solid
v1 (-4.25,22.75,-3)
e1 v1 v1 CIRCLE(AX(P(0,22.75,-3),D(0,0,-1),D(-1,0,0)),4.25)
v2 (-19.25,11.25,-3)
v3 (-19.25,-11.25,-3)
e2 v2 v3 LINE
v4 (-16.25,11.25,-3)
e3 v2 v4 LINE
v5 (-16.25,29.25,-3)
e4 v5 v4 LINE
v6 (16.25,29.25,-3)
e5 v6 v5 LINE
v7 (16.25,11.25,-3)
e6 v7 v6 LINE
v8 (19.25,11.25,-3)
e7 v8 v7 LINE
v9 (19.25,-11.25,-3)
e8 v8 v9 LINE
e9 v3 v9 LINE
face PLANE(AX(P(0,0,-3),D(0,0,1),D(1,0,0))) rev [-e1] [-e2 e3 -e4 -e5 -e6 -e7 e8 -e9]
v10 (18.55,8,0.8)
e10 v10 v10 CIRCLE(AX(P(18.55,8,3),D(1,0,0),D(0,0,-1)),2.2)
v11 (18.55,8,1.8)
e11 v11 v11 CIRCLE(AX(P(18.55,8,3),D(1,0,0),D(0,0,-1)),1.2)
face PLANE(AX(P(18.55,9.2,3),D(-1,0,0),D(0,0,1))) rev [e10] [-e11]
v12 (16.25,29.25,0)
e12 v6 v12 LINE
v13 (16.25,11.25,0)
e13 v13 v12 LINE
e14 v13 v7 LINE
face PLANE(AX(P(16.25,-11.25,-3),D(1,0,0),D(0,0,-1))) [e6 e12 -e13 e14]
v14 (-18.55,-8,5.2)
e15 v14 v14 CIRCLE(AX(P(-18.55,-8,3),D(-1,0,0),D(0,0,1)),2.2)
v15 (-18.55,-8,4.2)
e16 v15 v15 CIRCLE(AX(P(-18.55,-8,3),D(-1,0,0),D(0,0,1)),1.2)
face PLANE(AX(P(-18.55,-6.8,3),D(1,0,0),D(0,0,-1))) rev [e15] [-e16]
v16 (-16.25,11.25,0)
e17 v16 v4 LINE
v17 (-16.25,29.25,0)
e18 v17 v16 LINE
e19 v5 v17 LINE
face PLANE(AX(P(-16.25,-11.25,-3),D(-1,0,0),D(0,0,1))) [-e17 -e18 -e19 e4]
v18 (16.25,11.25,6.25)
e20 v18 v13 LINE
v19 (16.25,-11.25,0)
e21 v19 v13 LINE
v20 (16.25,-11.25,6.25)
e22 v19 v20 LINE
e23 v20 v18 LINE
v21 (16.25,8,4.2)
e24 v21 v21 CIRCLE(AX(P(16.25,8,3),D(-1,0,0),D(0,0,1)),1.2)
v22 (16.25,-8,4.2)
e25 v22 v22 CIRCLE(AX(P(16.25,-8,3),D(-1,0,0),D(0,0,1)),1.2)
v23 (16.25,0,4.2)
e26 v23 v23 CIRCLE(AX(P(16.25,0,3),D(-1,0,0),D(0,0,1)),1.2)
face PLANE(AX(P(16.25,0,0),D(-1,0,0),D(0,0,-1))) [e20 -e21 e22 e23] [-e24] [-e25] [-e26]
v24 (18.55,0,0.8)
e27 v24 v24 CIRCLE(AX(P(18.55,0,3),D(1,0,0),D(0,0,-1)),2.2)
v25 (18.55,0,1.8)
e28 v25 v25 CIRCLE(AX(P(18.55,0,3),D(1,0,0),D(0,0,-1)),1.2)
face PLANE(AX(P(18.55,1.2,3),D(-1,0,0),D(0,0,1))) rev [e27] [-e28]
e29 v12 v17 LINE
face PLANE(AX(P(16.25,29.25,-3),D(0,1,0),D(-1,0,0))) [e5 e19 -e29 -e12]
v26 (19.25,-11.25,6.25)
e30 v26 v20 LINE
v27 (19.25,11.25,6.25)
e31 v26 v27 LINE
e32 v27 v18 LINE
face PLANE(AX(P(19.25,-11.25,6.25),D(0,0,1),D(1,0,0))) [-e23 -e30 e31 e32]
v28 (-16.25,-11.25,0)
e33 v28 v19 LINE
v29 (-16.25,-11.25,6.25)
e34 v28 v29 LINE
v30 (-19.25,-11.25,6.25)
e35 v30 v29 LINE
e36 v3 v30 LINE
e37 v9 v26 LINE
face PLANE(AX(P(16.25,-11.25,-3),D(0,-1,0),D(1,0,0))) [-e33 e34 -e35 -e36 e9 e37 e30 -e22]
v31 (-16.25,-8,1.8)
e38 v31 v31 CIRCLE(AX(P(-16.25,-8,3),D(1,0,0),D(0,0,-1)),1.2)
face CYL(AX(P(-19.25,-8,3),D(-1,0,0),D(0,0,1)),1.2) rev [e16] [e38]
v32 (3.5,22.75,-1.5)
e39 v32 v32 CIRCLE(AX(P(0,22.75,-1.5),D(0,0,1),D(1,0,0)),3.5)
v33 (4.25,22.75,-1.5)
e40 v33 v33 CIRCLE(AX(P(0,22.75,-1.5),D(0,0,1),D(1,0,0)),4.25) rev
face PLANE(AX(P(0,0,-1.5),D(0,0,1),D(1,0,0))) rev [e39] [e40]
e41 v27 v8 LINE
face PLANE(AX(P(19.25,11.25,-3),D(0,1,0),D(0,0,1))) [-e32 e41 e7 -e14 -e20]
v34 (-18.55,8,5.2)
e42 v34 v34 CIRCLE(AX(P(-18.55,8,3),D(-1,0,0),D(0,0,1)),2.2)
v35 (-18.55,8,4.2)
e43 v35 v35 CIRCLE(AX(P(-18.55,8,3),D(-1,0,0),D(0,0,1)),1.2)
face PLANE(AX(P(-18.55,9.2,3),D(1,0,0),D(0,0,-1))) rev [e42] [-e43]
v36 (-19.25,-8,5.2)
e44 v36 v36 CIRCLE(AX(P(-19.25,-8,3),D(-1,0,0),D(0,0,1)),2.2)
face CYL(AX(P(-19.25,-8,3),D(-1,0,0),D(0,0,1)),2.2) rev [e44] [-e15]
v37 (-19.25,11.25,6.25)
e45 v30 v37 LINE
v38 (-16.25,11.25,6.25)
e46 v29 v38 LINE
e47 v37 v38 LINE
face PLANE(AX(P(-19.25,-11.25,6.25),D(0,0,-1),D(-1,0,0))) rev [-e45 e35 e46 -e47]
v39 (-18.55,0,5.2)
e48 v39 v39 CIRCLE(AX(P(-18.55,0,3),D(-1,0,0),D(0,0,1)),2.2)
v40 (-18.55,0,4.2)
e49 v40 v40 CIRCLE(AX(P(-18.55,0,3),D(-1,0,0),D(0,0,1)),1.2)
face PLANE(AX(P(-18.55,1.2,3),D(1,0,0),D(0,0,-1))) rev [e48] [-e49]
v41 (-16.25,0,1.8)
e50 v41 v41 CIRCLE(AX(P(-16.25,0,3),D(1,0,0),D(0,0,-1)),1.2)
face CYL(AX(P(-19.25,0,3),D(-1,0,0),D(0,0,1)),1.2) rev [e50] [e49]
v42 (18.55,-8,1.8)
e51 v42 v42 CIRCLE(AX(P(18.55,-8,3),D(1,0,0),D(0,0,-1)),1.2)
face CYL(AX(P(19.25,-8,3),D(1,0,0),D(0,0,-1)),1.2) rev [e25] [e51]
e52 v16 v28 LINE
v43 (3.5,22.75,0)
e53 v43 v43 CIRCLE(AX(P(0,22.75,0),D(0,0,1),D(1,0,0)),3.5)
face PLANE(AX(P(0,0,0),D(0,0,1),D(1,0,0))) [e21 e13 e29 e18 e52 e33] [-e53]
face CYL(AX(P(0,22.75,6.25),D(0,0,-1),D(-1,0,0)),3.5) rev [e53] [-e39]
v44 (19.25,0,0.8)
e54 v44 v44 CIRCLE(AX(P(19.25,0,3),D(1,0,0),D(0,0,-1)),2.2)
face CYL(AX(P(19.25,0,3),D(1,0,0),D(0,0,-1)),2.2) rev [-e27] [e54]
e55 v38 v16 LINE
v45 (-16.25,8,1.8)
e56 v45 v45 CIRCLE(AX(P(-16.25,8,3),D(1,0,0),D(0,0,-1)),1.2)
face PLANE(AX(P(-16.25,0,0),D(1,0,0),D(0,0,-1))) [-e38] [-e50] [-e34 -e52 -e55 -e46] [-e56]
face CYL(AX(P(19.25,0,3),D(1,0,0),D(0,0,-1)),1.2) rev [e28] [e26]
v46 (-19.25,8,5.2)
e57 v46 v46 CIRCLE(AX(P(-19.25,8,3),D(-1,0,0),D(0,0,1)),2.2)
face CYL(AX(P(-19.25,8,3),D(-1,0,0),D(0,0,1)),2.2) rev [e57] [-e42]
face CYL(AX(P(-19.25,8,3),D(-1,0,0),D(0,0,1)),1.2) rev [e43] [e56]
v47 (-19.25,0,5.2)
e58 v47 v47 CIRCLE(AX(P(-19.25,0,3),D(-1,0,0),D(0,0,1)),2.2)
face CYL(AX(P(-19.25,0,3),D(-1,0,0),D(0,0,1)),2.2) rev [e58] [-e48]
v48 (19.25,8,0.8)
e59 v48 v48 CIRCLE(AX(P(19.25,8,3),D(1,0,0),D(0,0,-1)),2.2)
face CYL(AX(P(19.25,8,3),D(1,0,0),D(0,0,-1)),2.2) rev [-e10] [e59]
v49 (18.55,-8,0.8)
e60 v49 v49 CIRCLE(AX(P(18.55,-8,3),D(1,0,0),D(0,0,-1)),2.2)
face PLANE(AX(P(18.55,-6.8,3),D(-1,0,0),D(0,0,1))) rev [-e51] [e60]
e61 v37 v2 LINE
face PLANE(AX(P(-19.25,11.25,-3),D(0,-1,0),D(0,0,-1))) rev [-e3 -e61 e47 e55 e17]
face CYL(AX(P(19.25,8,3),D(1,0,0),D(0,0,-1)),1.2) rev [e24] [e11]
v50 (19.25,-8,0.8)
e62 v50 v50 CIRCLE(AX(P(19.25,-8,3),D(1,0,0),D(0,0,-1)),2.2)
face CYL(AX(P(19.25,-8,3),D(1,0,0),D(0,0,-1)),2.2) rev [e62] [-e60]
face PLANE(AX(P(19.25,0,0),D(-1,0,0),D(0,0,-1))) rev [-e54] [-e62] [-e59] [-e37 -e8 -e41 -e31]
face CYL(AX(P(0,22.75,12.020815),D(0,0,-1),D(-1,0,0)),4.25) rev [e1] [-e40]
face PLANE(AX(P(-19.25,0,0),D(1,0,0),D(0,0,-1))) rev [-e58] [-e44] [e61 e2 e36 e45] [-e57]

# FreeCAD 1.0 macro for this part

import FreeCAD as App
import Part
import Sketcher
Q = App.Units.Quantity


def add_polygon(sketch, points):
    """Adds a closed chain of lines whose ends are joined by coincident constraints."""
    first, n = sketch.GeometryCount, len(points)
    for a, b in zip(points, points[1:] + points[:1]):
        sketch.addGeometry(Part.LineSegment(App.Vector(*a, 0), App.Vector(*b, 0)), False)
    for i in range(n):
        sketch.addConstraint(Sketcher.Constraint("Coincident", first + i, 2, first + (i + 1) % n, 1))

doc = App.newDocument("Part")
body = doc.addObject("PartDesign::Body", "Body")

sketch1 = body.newObject("Sketcher::SketchObject", "Sketch")
sketch1.AttachmentSupport = (doc.getObject("XY_Plane"), [""])
sketch1.MapMode = "FlatFace"
add_polygon(sketch1, [(-16, 29), (-16, -11), (16, -11), (16, 29)])
sketch1.addConstraint([
    Sketcher.Constraint("Vertical", 0),
    Sketcher.Constraint("Horizontal", 1),
    Sketcher.Constraint("Vertical", 2),
    Sketcher.Constraint("Horizontal", 3),
    Sketcher.Constraint("DistanceX", 1, 1, 1, 2, Q("32.5 mm")),
    Sketcher.Constraint("DistanceY", 0, 2, 0, 1, Q("40.5 mm")),
    Sketcher.Constraint("DistanceX", 0, 2, -1, 1, Q("16.25 mm")),
    Sketcher.Constraint("DistanceY", 0, 2, -1, 1, Q("11.25 mm")),
])
pad1 = body.newObject("PartDesign::Pad", "Pad")
pad1.Profile = sketch1
pad1.Length = 3
pad1.Reversed = True

sketch2 = body.newObject("Sketcher::SketchObject", "Sketch001")
sketch2.AttachmentSupport = (doc.getObject("YZ_Plane"), [""])
sketch2.MapMode = "FlatFace"
sketch2.AttachmentOffset = App.Placement(App.Vector(0, 0, -16.25), App.Rotation())
add_polygon(sketch2, [(11, -3), (-11, -3), (-11, 6), (11, 6)])
sketch2.addConstraint([
    Sketcher.Constraint("Horizontal", 0),
    Sketcher.Constraint("Vertical", 1),
    Sketcher.Constraint("Horizontal", 2),
    Sketcher.Constraint("Vertical", 3),
    Sketcher.Constraint("DistanceX", 0, 2, 0, 1, Q("22.5 mm")),
    Sketcher.Constraint("DistanceY", 0, 2, -1, 1, Q("3 mm")),
    Sketcher.Constraint("DistanceY", 1, 1, 1, 2, Q("9.25 mm")),
    Sketcher.Constraint("DistanceX", 0, 2, -1, 1, Q("11.25 mm")),
])
pad2 = body.newObject("PartDesign::Pad", "Pad001")
pad2.Profile = sketch2
pad2.Length = 3
pad2.Reversed = True
doc.recompute()

mirrored = body.newObject("PartDesign::Mirrored", "Mirrored")
mirrored.Originals = [pad2]
mirrored.MirrorPlane = (doc.getObject("YZ_Plane"), [""])
body.Tip = mirrored

sketch3 = body.newObject("Sketcher::SketchObject", "Sketch002")
sketch3.AttachmentSupport = (doc.getObject("XY_Plane"), [""])
sketch3.MapMode = "FlatFace"
sketch3.AttachmentOffset = App.Placement(App.Vector(0, 0, -3), App.Rotation())
sketch3.addGeometry(Part.Circle(App.Vector(0, 22.8, 0), App.Vector(0, 0, 1), 4.2), False)
sketch3.addConstraint([
    Sketcher.Constraint("PointOnObject", 0, 3, -2),
    Sketcher.Constraint("Diameter", 0, Q("8.5 mm")),
    Sketcher.Constraint("DistanceY", -1, 1, 0, 3, Q("22.75 mm")),
])
pocket1 = body.newObject("PartDesign::Pocket", "Pocket")
pocket1.Profile = sketch3
pocket1.Length = 1.5
pocket1.Reversed = True

sketch4 = body.newObject("Sketcher::SketchObject", "Sketch003")
sketch4.AttachmentSupport = (doc.getObject("XY_Plane"), [""])
sketch4.MapMode = "FlatFace"
sketch4.AttachmentOffset = App.Placement(App.Vector(0, 0, -3), App.Rotation())
sketch4.addGeometry(Part.Circle(App.Vector(0, 22.8, 0), App.Vector(0, 0, 1), 3.5), False)
sketch4.addConstraint([
    Sketcher.Constraint("PointOnObject", 0, 3, -2),
    Sketcher.Constraint("Diameter", 0, Q("7 mm")),
    Sketcher.Constraint("DistanceY", -1, 1, 0, 3, Q("22.75 mm")),
])
pocket2 = body.newObject("PartDesign::Pocket", "Pocket001")
pocket2.Profile = sketch4
pocket2.Type = "ThroughAll"
pocket2.Reversed = True

sketch5 = body.newObject("Sketcher::SketchObject", "Sketch004")
sketch5.AttachmentSupport = (doc.getObject("YZ_Plane"), [""])
sketch5.MapMode = "FlatFace"
sketch5.AttachmentOffset = App.Placement(App.Vector(0, 0, -19.25), App.Rotation())
sketch5.addGeometry([
    Part.Circle(App.Vector(8, 3, 0), App.Vector(0, 0, 1), 1.2),
    Part.Circle(App.Vector(0, 3, 0), App.Vector(0, 0, 1), 1.2),
    Part.Circle(App.Vector(-8, 3, 0), App.Vector(0, 0, 1), 1.2),
], False)
sketch5.addConstraint([
    Sketcher.Constraint("Equal", 0, 1),
    Sketcher.Constraint("Equal", 1, 2),
    Sketcher.Constraint("Symmetric", 0, 3, 2, 3, -2),
    Sketcher.Constraint("PointOnObject", 1, 3, -2),
    Sketcher.Constraint("Horizontal", 0, 3, 1, 3),
    Sketcher.Constraint("Diameter", 0, Q("2.4 mm")),
    Sketcher.Constraint("DistanceX", -1, 1, 0, 3, Q("8 mm")),
    Sketcher.Constraint("DistanceY", -1, 1, 0, 3, Q("3 mm")),
])
doc.recompute()
hole = body.newObject("PartDesign::Hole", "Hole")
hole.Profile = sketch5
hole.ThreadType = "None"
hole.Diameter = 2.4
hole.DepthType = "Dimension"
hole.Depth = 3
hole.DrillPoint = "Flat"
hole.HoleCutType = "Counterbore"
hole.HoleCutDiameter = 4.4
hole.HoleCutDepth = 0.7
hole.Reversed = True
doc.recompute()

mirrored2 = body.newObject("PartDesign::Mirrored", "Mirrored001")
mirrored2.Originals = [hole]
mirrored2.MirrorPlane = (doc.getObject("YZ_Plane"), [""])
body.Tip = mirrored2

doc.recompute()
